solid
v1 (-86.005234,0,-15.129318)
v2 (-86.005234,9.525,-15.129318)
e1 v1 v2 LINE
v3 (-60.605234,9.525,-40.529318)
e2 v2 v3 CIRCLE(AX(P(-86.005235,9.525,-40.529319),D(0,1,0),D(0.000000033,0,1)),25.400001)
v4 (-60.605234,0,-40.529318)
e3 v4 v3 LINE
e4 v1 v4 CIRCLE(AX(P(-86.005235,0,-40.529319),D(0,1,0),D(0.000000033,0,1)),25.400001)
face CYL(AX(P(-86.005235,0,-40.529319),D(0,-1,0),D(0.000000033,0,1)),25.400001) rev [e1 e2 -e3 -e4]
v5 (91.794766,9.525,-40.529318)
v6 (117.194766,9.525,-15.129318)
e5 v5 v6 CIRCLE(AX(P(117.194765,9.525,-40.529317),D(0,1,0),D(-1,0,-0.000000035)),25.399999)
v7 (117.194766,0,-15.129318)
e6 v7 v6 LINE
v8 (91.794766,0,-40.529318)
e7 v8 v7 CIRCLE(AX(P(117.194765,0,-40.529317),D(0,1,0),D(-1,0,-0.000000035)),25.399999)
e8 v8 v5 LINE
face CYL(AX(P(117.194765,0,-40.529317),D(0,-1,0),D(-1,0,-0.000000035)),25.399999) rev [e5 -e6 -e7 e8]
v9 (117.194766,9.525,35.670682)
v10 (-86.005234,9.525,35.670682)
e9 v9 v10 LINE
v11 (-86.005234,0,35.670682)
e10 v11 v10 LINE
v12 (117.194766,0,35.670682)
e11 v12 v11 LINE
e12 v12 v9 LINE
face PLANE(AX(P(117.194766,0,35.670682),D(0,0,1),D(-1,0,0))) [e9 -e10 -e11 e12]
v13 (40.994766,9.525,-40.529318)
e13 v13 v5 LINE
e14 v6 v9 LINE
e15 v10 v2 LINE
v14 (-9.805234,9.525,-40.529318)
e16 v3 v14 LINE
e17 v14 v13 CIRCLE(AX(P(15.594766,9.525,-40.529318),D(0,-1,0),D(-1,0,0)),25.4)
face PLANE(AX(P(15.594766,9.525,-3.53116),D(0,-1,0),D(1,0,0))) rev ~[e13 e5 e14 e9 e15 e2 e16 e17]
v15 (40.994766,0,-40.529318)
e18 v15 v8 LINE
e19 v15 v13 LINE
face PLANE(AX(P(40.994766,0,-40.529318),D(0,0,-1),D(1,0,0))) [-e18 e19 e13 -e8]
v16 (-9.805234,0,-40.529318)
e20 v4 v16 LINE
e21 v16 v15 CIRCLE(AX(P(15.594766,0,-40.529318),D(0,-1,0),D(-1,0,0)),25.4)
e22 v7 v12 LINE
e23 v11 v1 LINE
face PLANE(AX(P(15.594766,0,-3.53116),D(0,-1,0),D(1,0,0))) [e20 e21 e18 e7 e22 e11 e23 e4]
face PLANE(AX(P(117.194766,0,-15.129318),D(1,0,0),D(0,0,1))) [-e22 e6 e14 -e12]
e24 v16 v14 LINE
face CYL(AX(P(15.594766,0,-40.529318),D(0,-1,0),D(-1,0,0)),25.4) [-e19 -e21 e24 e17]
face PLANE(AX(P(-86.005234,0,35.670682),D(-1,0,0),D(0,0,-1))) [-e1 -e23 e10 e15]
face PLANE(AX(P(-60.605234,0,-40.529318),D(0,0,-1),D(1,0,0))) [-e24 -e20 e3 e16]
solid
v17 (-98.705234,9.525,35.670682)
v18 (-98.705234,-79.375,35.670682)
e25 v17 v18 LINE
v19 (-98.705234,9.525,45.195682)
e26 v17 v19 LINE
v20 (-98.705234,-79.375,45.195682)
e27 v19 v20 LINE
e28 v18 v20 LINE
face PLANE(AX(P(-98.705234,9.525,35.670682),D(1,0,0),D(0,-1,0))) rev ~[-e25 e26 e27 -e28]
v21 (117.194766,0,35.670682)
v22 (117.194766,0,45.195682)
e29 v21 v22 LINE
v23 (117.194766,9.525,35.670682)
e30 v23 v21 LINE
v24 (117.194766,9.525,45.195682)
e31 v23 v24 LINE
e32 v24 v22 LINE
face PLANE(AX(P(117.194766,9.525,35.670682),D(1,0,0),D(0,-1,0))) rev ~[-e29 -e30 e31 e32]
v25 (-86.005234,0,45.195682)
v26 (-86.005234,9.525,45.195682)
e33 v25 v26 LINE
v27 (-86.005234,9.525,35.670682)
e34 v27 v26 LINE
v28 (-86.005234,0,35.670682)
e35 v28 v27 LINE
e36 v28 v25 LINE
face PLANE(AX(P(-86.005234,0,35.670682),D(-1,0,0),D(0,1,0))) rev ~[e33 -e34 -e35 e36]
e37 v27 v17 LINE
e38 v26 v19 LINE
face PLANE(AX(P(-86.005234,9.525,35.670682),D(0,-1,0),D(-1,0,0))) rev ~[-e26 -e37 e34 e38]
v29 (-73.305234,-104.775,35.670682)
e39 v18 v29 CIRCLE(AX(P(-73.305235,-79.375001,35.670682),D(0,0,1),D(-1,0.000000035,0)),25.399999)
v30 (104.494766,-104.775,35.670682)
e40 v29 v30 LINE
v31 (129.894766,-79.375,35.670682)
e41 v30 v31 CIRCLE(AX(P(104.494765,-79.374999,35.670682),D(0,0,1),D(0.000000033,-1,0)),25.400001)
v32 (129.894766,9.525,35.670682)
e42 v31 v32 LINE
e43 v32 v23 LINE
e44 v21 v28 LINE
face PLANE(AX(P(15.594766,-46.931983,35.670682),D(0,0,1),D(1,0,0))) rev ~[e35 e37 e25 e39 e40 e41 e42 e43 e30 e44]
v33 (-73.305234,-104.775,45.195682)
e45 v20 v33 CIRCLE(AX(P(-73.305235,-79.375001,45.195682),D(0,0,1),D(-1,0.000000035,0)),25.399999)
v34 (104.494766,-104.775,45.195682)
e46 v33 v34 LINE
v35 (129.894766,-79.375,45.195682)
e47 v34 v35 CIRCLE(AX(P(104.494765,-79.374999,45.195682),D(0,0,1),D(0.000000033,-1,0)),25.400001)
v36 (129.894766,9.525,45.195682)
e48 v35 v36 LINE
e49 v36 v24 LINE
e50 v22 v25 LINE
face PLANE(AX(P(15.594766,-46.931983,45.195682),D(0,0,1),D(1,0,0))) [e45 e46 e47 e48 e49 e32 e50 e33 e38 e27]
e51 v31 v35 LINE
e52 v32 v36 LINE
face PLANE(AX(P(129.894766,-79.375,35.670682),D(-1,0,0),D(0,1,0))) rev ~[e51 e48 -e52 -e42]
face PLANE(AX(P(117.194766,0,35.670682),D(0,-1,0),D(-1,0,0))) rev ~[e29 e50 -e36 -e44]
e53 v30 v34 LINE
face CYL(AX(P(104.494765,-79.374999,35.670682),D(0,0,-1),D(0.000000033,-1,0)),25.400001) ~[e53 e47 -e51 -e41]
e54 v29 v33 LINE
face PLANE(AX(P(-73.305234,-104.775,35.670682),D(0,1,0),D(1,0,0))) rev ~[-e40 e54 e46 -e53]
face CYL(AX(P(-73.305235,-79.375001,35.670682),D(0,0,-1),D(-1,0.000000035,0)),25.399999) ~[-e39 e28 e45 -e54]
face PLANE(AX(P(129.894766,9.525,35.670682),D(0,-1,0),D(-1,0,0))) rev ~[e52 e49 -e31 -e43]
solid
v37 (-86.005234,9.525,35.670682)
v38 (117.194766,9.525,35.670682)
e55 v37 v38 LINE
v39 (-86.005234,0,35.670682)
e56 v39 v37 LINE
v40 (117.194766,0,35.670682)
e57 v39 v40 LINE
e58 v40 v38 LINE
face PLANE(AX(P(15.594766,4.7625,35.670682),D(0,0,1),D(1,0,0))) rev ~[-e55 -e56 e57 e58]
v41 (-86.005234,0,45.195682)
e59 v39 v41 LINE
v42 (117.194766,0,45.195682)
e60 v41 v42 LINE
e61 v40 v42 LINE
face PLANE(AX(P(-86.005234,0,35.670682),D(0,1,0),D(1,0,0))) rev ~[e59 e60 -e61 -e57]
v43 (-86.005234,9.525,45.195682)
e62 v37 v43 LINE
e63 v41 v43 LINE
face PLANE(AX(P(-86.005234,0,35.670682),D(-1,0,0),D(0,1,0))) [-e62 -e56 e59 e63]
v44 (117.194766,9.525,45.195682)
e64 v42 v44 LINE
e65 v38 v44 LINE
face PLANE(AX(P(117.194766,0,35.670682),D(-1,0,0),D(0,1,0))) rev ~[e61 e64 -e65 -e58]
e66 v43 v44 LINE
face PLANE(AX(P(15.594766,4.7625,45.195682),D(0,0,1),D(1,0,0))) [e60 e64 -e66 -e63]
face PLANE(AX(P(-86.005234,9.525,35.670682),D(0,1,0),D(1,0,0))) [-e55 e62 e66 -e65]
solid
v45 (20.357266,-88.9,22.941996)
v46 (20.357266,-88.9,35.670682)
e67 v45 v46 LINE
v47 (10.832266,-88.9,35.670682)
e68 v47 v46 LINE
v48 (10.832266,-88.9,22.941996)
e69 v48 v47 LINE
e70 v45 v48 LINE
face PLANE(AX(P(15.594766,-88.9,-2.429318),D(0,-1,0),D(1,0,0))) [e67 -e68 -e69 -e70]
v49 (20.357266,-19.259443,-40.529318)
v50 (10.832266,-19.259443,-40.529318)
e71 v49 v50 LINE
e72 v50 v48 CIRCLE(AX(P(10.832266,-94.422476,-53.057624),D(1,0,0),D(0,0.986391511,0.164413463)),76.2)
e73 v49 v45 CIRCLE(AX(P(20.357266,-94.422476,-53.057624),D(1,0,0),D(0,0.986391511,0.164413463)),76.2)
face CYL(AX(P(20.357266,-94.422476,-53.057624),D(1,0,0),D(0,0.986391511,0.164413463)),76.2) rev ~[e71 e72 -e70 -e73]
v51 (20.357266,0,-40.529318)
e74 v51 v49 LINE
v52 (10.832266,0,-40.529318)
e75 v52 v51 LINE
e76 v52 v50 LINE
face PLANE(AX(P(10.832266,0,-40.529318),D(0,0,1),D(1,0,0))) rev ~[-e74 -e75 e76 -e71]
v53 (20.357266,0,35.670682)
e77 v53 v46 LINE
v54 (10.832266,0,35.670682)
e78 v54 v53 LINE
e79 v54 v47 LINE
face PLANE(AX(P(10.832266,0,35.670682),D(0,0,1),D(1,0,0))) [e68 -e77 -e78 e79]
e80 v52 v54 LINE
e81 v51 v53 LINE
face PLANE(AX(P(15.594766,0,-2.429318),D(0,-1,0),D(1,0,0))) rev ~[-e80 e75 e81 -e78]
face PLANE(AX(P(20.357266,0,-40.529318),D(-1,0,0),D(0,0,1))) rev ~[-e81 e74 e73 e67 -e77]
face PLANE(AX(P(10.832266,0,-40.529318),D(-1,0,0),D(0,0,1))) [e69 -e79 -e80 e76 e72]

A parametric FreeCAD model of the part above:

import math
import FreeCAD as App
import Part
import Sketcher
Q = App.Units.Quantity

doc = App.newDocument("Part")
body = doc.addObject("PartDesign::Body", "Body")

# Sketch on XZ plane
sketch1 = doc.addObject("Sketcher::SketchObject", "Sketch")
body.addObject(sketch1)
sketch1.AttachmentSupport = (doc.XZ_Plane, [""])
sketch1.MapMode = "FlatFace"
sketch1.addGeometry(Part.LineSegment(App.Vector(117.194766, 35.670682, 0), App.Vector(-86.005234, 35.670682, 0)), False)
sketch1.addGeometry(Part.LineSegment(App.Vector(-86.005234, 35.670682, 0), App.Vector(-86.005234, -15.129318, 0)), False)
sketch1.addGeometry(Part.ArcOfCircle(Part.Circle(App.Vector(-86.005235, -40.529319, 0), App.Vector(0, 0, 1), 25.400001), math.radians(0.000002), math.radians(89.999998)), False)
sketch1.addGeometry(Part.LineSegment(App.Vector(-60.605234, -40.529318, 0), App.Vector(-9.805234, -40.529318, 0)), False)
sketch1.addGeometry(Part.ArcOfCircle(Part.Circle(App.Vector(15.594766, -40.529318, 0), App.Vector(0, 0, 1), 25.4), math.radians(180), math.radians(360)), False)
sketch1.addGeometry(Part.LineSegment(App.Vector(40.994766, -40.529318, 0), App.Vector(91.794766, -40.529318, 0)), False)
sketch1.addGeometry(Part.ArcOfCircle(Part.Circle(App.Vector(117.194765, -40.529317, 0), App.Vector(0, 0, 1), 25.399999), math.radians(89.999998), math.radians(180.000002)), False)
sketch1.addGeometry(Part.LineSegment(App.Vector(117.194766, -15.129318, 0), App.Vector(117.194766, 35.670682, 0)), False)
sketch1.addConstraint(Sketcher.Constraint("Coincident", 0, 2, 1, 1))
sketch1.addConstraint(Sketcher.Constraint("Coincident", 1, 2, 2, 2))
sketch1.addConstraint(Sketcher.Constraint("Coincident", 2, 1, 3, 1))
sketch1.addConstraint(Sketcher.Constraint("Coincident", 3, 2, 4, 1))
sketch1.addConstraint(Sketcher.Constraint("Coincident", 4, 2, 5, 1))
sketch1.addConstraint(Sketcher.Constraint("Coincident", 5, 2, 6, 2))
sketch1.addConstraint(Sketcher.Constraint("Coincident", 6, 1, 7, 1))
sketch1.addConstraint(Sketcher.Constraint("Coincident", 7, 2, 0, 1))
sketch1.addConstraint(Sketcher.Constraint("Horizontal", 0))
sketch1.addConstraint(Sketcher.Constraint("Vertical", 1))
sketch1.addConstraint(Sketcher.Constraint("Horizontal", 3))
sketch1.addConstraint(Sketcher.Constraint("Horizontal", 5))
sketch1.addConstraint(Sketcher.Constraint("Vertical", 7))
sketch1.addConstraint(Sketcher.Constraint("Equal", 2, 4))
sketch1.addConstraint(Sketcher.Constraint("Equal", 4, 6))
sketch1.addConstraint(Sketcher.Constraint("Horizontal", 2, 3, 4, 3))
sketch1.addConstraint(Sketcher.Constraint("Horizontal", 4, 3, 6, 3))
sketch1.addConstraint(Sketcher.Constraint("Horizontal", 6, 3, 2, 1))
sketch1.addConstraint(Sketcher.Constraint("Horizontal", 3, 2, 4, 2))
sketch1.addConstraint(Sketcher.Constraint("Vertical", 2, 3, 0, 2))
sketch1.addConstraint(Sketcher.Constraint("Equal", 3, 5))
sketch1.addConstraint(Sketcher.Constraint("Equal", 5, 1))
sketch1.addConstraint(Sketcher.Constraint("Radius", 2, Q("1 in")))
sketch1.addConstraint(Sketcher.Constraint("DistanceX", 0, 2, 0, 1, Q("8 in")))
sketch1.addConstraint(Sketcher.Constraint("DistanceX", 3, 1, 3, 2, Q("2 in")))
sketch1.addConstraint(Sketcher.Constraint("DistanceY", 2, 3, -1, 1, Q("40.529319 mm")))
sketch1.addConstraint(Sketcher.Constraint("DistanceX", 2, 3, -1, 1, Q("86.005235 mm")))
pad1 = doc.addObject("PartDesign::Pad", "Pad")
body.addObject(pad1)
pad1.Profile = sketch1
pad1.Length = Q("0.375 in")
pad1.Reversed = True
body2 = doc.addObject("PartDesign::Body", "Body001")

# Sketch on XY plane
sketch2 = doc.addObject("Sketcher::SketchObject", "Sketch001")
body2.addObject(sketch2)
sketch2.AttachmentSupport = (doc.getObject("XY_Plane001"), [""])
sketch2.MapMode = "FlatFace"
sketch2.AttachmentOffset = App.Placement(App.Vector(0, 0, 35.670682), App.Rotation())
sketch2.addGeometry(Part.LineSegment(App.Vector(-86.005234, 9.525, 0), App.Vector(-98.705234, 9.525, 0)), False)
sketch2.addGeometry(Part.LineSegment(App.Vector(-98.705234, 9.525, 0), App.Vector(-98.705234, -79.375, 0)), False)
sketch2.addGeometry(Part.ArcOfCircle(Part.Circle(App.Vector(-73.305235, -79.375001, 0), App.Vector(0, 0, 1), 25.399999), math.radians(179.999998), math.radians(270.000002)), False)
sketch2.addGeometry(Part.LineSegment(App.Vector(-73.305234, -104.775, 0), App.Vector(104.494766, -104.775, 0)), False)
sketch2.addGeometry(Part.ArcOfCircle(Part.Circle(App.Vector(104.494765, -79.374999, 0), App.Vector(0, 0, 1), 25.400001), math.radians(-89.999998), math.radians(-0.000002)), False)
sketch2.addGeometry(Part.LineSegment(App.Vector(129.894766, -79.375, 0), App.Vector(129.894766, 9.525, 0)), False)
sketch2.addGeometry(Part.LineSegment(App.Vector(129.894766, 9.525, 0), App.Vector(117.194766, 9.525, 0)), False)
sketch2.addGeometry(Part.LineSegment(App.Vector(117.194766, 9.525, 0), App.Vector(117.194766, 0, 0)), False)
sketch2.addGeometry(Part.LineSegment(App.Vector(117.194766, 0, 0), App.Vector(-86.005234, 0, 0)), False)
sketch2.addGeometry(Part.LineSegment(App.Vector(-86.005234, 0, 0), App.Vector(-86.005234, 9.525, 0)), False)
sketch2.addConstraint(Sketcher.Constraint("Coincident", 0, 2, 1, 1))
sketch2.addConstraint(Sketcher.Constraint("Tangent", 1, 2, 2, 1))
sketch2.addConstraint(Sketcher.Constraint("Tangent", 2, 2, 3, 1))
sketch2.addConstraint(Sketcher.Constraint("Tangent", 3, 2, 4, 1))
sketch2.addConstraint(Sketcher.Constraint("Tangent", 4, 2, 5, 1))
sketch2.addConstraint(Sketcher.Constraint("Coincident", 5, 2, 6, 1))
sketch2.addConstraint(Sketcher.Constraint("Coincident", 6, 2, 7, 1))
sketch2.addConstraint(Sketcher.Constraint("Coincident", 7, 2, 8, 1))
sketch2.addConstraint(Sketcher.Constraint("Coincident", 8, 2, 9, 1))
sketch2.addConstraint(Sketcher.Constraint("Coincident", 9, 2, 0, 1))
sketch2.addConstraint(Sketcher.Constraint("Horizontal", 0))
sketch2.addConstraint(Sketcher.Constraint("Vertical", 1))
sketch2.addConstraint(Sketcher.Constraint("Horizontal", 3))
sketch2.addConstraint(Sketcher.Constraint("Vertical", 5))
sketch2.addConstraint(Sketcher.Constraint("Horizontal", 6))
sketch2.addConstraint(Sketcher.Constraint("Vertical", 7))
sketch2.addConstraint(Sketcher.Constraint("Horizontal", 8))
sketch2.addConstraint(Sketcher.Constraint("Vertical", 9))
sketch2.addConstraint(Sketcher.Constraint("Equal", 2, 4))
sketch2.addConstraint(Sketcher.Constraint("PointOnObject", 7, 2, -1))
sketch2.addConstraint(Sketcher.Constraint("Horizontal", 0, 2, 5, 2))
sketch2.addConstraint(Sketcher.Constraint("Equal", 0, 6))
sketch2.addConstraint(Sketcher.Constraint("Radius", 2, Q("1 in")))
sketch2.addConstraint(Sketcher.Constraint("DistanceX", 3, 1, 3, 2, Q("7 in")))
sketch2.addConstraint(Sketcher.Constraint("DistanceX", 8, 2, 8, 1, Q("8 in")))
sketch2.addConstraint(Sketcher.Constraint("DistanceY", 1, 2, 1, 1, Q("3.5 in")))
sketch2.addConstraint(Sketcher.Constraint("DistanceY", 7, 2, 7, 1, Q("0.375 in")))
sketch2.addConstraint(Sketcher.Constraint("DistanceX", 2, 3, -1, 1, Q("73.305235 mm")))
pad2 = doc.addObject("PartDesign::Pad", "Pad001")
body2.addObject(pad2)
pad2.Profile = sketch2
pad2.Length = Q("0.375 in")
body3 = doc.addObject("PartDesign::Body", "Body002")

# Sketch on XY plane
sketch3 = doc.addObject("Sketcher::SketchObject", "Sketch002")
body3.addObject(sketch3)
sketch3.AttachmentSupport = (doc.getObject("XY_Plane002"), [""])
sketch3.MapMode = "FlatFace"
sketch3.AttachmentOffset = App.Placement(App.Vector(0, 0, 35.670682), App.Rotation())
sketch3.addGeometry(Part.LineSegment(App.Vector(-86.005234, 9.525, 0), App.Vector(-86.005234, 0, 0)), False)
sketch3.addGeometry(Part.LineSegment(App.Vector(-86.005234, 0, 0), App.Vector(117.194766, 0, 0)), False)
sketch3.addGeometry(Part.LineSegment(App.Vector(117.194766, 0, 0), App.Vector(117.194766, 9.525, 0)), False)
sketch3.addGeometry(Part.LineSegment(App.Vector(117.194766, 9.525, 0), App.Vector(-86.005234, 9.525, 0)), False)
sketch3.addConstraint(Sketcher.Constraint("Coincident", 0, 2, 1, 1))
sketch3.addConstraint(Sketcher.Constraint("Coincident", 1, 2, 2, 1))
sketch3.addConstraint(Sketcher.Constraint("Coincident", 2, 2, 3, 1))
sketch3.addConstraint(Sketcher.Constraint("Coincident", 3, 2, 0, 1))
sketch3.addConstraint(Sketcher.Constraint("Vertical", 0))
sketch3.addConstraint(Sketcher.Constraint("Horizontal", 1))
sketch3.addConstraint(Sketcher.Constraint("Vertical", 2))
sketch3.addConstraint(Sketcher.Constraint("Horizontal", 3))
sketch3.addConstraint(Sketcher.Constraint("PointOnObject", 0, 2, -1))
sketch3.addConstraint(Sketcher.Constraint("DistanceX", 1, 1, 1, 2, Q("8 in")))
sketch3.addConstraint(Sketcher.Constraint("DistanceY", 0, 2, 0, 1, Q("0.375 in")))
sketch3.addConstraint(Sketcher.Constraint("DistanceX", 0, 2, -1, 1, Q("86.005234 mm")))
pad3 = doc.addObject("PartDesign::Pad", "Pad002")
body3.addObject(pad3)
pad3.Profile = sketch3
pad3.Length = Q("0.375 in")
body4 = doc.addObject("PartDesign::Body", "Body003")

# Sketch on XZ plane
sketch4 = doc.addObject("Sketcher::SketchObject", "Sketch003")
body4.addObject(sketch4)
sketch4.AttachmentSupport = (doc.getObject("XZ_Plane003"), [""])
sketch4.MapMode = "FlatFace"
sketch4.addGeometry(Part.LineSegment(App.Vector(10.832266, 35.670682, 0), App.Vector(10.832266, -40.529318, 0)), False)
sketch4.addGeometry(Part.LineSegment(App.Vector(10.832266, -40.529318, 0), App.Vector(20.357266, -40.529318, 0)), False)
sketch4.addGeometry(Part.LineSegment(App.Vector(20.357266, -40.529318, 0), App.Vector(20.357266, 35.670682, 0)), False)
sketch4.addGeometry(Part.LineSegment(App.Vector(20.357266, 35.670682, 0), App.Vector(10.832266, 35.670682, 0)), False)
sketch4.addConstraint(Sketcher.Constraint("Coincident", 0, 2, 1, 1))
sketch4.addConstraint(Sketcher.Constraint("Coincident", 1, 2, 2, 1))
sketch4.addConstraint(Sketcher.Constraint("Coincident", 2, 2, 3, 1))
sketch4.addConstraint(Sketcher.Constraint("Coincident", 3, 2, 0, 1))
sketch4.addConstraint(Sketcher.Constraint("Vertical", 0))
sketch4.addConstraint(Sketcher.Constraint("Horizontal", 1))
sketch4.addConstraint(Sketcher.Constraint("Vertical", 2))
sketch4.addConstraint(Sketcher.Constraint("Horizontal", 3))
sketch4.addConstraint(Sketcher.Constraint("DistanceY", 0, 2, 0, 1, Q("3 in")))
sketch4.addConstraint(Sketcher.Constraint("DistanceX", 1, 1, 1, 2, Q("0.375 in")))
sketch4.addConstraint(Sketcher.Constraint("DistanceY", 0, 2, -1, 1, Q("40.529318 mm")))
sketch4.addConstraint(Sketcher.Constraint("DistanceX", -1, 1, 0, 2, Q("10.832266 mm")))
pad4 = doc.addObject("PartDesign::Pad", "Pad003")
body4.addObject(pad4)
pad4.Profile = sketch4
pad4.Length = Q("3.5 in")

# Sketch on YZ plane
sketch5 = doc.addObject("Sketcher::SketchObject", "Sketch004")
body4.addObject(sketch5)
sketch5.AttachmentSupport = (doc.getObject("YZ_Plane003"), [""])
sketch5.MapMode = "FlatFace"
sketch5.AttachmentOffset = App.Placement(App.Vector(0, 0, 20.357266), App.Rotation())
sketch5.addGeometry(Part.ArcOfCircle(Part.Circle(App.Vector(-94.422476, -53.057624, 0), App.Vector(0, 0, 1), 76.2), math.radians(9.463163), math.radians(85.843934)), False)
sketch5.addGeometry(Part.ArcOfCircle(Part.Circle(App.Vector(-94.422476, -53.057624, 0), App.Vector(0, 0, 1), 76.2), math.radians(85.843934), math.radians(360)), False)
sketch5.addGeometry(Part.ArcOfCircle(Part.Circle(App.Vector(-94.422683, -53.057642, 0), App.Vector(0, 0, 1), 76.200207), math.radians(0.000013), math.radians(9.463151)), False)
sketch5.addConstraint(Sketcher.Constraint("Coincident", 0, 2, 1, 1))
sketch5.addConstraint(Sketcher.Constraint("Coincident", 1, 2, 2, 1))
sketch5.addConstraint(Sketcher.Constraint("Coincident", 2, 2, 0, 1))
sketch5.addConstraint(Sketcher.Constraint("Coincident", 1, 3, 0, 3))
sketch5.addConstraint(Sketcher.Constraint("Radius", 0, Q("3 in")))
sketch5.addConstraint(Sketcher.Constraint("DistanceX", 0, 2, -1, 1, Q("3.5 in")))
sketch5.addConstraint(Sketcher.Constraint("Radius", 2, Q("76.200207 mm")))
sketch5.addConstraint(Sketcher.Constraint("DistanceY", 2, 3, -1, 1, Q("53.057642 mm")))
sketch5.addConstraint(Sketcher.Constraint("DistanceY", 2, 2, -1, 1, Q("40.529318 mm")))
sketch5.addConstraint(Sketcher.Constraint("DistanceY", 0, 3, 0, 2, Q("75.99962 mm")))
sketch5.addConstraint(Sketcher.Constraint("DistanceY", 1, 2, 0, 2, Q("75.99962 mm")))
pocket1 = doc.addObject("PartDesign::Pocket", "Pocket")
body4.addObject(pocket1)
pocket1.Profile = sketch5
pocket1.Length = Q("0.76 in")

doc.recompute()
